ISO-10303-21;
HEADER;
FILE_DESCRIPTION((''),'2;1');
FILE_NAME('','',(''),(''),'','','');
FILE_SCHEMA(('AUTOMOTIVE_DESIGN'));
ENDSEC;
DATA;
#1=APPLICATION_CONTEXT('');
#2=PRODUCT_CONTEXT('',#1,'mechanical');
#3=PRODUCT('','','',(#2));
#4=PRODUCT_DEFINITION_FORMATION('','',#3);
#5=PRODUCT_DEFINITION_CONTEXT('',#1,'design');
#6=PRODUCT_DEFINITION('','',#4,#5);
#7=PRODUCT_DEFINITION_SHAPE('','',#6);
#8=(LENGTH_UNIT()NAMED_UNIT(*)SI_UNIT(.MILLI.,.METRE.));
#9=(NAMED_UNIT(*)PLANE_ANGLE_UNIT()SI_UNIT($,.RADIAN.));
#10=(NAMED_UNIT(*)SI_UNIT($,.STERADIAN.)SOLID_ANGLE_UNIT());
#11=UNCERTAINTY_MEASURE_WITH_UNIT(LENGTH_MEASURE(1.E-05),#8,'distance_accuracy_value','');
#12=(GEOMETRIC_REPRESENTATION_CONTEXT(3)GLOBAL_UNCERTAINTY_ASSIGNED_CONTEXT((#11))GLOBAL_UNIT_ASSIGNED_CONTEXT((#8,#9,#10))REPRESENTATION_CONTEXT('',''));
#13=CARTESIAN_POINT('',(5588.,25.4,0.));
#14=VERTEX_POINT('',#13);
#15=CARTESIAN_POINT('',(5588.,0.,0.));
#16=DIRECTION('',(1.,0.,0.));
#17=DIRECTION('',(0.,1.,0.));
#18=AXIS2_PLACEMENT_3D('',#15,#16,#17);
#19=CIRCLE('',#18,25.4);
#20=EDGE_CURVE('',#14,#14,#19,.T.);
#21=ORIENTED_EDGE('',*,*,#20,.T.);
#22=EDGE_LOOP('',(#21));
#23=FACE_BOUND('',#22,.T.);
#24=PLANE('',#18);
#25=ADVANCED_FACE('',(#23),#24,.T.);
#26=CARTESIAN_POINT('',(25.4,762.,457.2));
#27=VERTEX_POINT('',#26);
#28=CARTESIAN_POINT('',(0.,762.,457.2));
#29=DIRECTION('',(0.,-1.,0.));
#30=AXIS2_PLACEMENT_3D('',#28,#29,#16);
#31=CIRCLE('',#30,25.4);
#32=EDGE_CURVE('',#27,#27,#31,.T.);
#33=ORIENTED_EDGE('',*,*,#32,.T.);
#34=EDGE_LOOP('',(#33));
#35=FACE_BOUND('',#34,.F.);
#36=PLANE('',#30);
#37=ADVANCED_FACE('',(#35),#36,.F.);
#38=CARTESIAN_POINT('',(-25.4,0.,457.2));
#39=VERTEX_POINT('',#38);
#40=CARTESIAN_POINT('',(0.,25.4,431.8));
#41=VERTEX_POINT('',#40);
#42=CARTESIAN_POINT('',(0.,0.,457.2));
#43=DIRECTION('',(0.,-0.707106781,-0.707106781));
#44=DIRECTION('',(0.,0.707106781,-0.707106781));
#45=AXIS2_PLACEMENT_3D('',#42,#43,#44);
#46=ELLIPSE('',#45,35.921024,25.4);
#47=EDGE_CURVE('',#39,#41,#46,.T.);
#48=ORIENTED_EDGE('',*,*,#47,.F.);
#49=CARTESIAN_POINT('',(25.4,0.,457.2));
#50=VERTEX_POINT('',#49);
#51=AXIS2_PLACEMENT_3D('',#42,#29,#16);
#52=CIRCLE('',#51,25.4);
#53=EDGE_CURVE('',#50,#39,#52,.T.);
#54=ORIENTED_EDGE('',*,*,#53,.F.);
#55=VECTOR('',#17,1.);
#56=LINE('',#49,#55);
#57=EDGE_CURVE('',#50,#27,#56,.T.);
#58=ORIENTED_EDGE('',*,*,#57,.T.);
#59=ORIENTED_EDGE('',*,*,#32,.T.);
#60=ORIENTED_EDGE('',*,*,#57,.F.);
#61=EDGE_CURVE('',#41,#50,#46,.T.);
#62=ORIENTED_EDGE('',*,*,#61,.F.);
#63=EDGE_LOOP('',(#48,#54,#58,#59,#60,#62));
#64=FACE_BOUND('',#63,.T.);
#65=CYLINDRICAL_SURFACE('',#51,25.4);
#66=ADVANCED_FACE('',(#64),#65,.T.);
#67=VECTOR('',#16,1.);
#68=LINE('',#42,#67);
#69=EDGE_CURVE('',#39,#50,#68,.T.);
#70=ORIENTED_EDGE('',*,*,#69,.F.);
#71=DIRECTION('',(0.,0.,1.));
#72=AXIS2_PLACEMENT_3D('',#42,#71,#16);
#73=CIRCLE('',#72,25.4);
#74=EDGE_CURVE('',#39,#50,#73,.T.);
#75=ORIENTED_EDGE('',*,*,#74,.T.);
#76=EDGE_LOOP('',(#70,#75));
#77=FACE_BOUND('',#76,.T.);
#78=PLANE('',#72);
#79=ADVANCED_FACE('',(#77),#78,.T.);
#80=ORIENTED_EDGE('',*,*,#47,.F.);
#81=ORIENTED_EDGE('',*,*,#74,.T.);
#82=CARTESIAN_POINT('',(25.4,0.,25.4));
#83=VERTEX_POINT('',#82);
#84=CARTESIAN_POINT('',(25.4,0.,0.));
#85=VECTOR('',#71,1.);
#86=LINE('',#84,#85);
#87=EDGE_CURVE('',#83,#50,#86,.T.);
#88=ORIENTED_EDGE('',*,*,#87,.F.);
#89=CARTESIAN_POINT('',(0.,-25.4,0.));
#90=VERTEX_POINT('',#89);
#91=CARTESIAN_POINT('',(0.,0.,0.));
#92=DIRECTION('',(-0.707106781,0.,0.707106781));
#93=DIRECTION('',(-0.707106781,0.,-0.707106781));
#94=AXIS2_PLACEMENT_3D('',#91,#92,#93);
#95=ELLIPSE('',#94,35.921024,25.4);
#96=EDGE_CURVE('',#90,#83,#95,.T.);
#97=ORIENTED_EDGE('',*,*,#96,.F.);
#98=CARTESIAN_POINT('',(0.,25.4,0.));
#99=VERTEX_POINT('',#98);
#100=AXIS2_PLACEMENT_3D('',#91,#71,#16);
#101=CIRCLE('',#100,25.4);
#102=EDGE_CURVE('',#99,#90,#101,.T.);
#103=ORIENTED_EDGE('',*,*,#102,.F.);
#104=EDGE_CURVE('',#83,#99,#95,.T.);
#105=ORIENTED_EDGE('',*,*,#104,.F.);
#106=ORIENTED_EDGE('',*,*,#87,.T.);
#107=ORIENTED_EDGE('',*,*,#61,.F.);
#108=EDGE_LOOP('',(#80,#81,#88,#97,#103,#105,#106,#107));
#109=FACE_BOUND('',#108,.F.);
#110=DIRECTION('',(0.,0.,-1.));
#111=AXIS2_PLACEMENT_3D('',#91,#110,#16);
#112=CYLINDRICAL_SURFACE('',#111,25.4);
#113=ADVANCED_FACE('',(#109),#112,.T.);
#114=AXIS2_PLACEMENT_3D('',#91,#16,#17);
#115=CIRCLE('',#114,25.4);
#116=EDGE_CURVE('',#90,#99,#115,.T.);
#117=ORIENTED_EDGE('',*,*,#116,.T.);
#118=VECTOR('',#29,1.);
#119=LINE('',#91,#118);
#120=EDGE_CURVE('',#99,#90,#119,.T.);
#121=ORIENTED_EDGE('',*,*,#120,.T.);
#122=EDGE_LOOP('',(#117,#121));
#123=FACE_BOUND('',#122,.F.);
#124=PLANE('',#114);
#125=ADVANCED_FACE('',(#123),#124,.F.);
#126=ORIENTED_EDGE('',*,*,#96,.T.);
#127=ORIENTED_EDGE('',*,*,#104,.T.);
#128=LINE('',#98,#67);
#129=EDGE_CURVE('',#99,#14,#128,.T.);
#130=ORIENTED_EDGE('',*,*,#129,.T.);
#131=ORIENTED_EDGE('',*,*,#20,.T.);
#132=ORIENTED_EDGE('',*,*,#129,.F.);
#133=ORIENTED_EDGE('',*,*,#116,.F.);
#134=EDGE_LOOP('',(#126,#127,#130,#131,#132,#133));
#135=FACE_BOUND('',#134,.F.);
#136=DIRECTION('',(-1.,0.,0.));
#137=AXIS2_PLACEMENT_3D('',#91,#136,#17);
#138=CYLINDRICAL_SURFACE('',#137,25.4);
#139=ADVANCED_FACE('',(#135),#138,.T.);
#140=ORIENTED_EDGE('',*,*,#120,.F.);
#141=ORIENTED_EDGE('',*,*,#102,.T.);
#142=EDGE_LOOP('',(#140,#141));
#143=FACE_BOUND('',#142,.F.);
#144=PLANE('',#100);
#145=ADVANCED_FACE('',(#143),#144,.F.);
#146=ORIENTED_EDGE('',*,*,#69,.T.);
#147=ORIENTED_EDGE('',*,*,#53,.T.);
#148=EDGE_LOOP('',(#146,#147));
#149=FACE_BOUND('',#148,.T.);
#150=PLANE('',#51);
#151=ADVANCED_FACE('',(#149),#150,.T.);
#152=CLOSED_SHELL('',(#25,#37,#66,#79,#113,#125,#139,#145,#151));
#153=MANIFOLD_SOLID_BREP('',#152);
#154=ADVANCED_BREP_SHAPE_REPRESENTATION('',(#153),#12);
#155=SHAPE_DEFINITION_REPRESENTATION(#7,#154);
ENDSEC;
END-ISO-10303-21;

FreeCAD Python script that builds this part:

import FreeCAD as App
import Part
import Sketcher

V = App.Vector
Q = App.Units.Quantity

doc = App.newDocument("Part")
body = doc.addObject("PartDesign::Body", "Body")

# Sketch on YZ plane
sketch1 = body.newObject("Sketcher::SketchObject", "Sketch")
sketch1.AttachmentSupport = (doc.getObject("YZ_Plane"), [""])
sketch1.MapMode = "FlatFace"
sketch1.addGeometry(Part.Circle(V(0, 0, 0), V(0, 0, 1), 25), False)
sketch1.addConstraint(Sketcher.Constraint("Coincident", 0, 3, -1, 1))
sketch1.addConstraint(Sketcher.Constraint("Diameter", 0, Q("2 in")))
pad1 = body.newObject("PartDesign::Pad", "Pad")
pad1.Profile = sketch1
pad1.Length = Q("220 in")

# Sketch on XY plane
sketch2 = body.newObject("Sketcher::SketchObject", "Sketch001")
sketch2.AttachmentSupport = (doc.getObject("XY_Plane"), [""])
sketch2.MapMode = "FlatFace"
sketch2.addGeometry(Part.Circle(V(0, 0, 0), V(0, 0, 1), 25), False)
sketch2.addConstraint(Sketcher.Constraint("Coincident", 0, 3, -1, 1))
sketch2.addConstraint(Sketcher.Constraint("Diameter", 0, Q("2 in")))
pad2 = body.newObject("PartDesign::Pad", "Pad001")
pad2.Profile = sketch2
pad2.Length = Q("18 in")

# Sketch on XZ plane
sketch3 = body.newObject("Sketcher::SketchObject", "Sketch002")
sketch3.AttachmentSupport = (doc.getObject("XZ_Plane"), [""])
sketch3.MapMode = "FlatFace"
sketch3.addGeometry(Part.Circle(V(0, 457, 0), V(0, 0, 1), 25), False)
sketch3.addConstraint(Sketcher.Constraint("PointOnObject", 0, 3, -2))
sketch3.addConstraint(Sketcher.Constraint("Diameter", 0, Q("2 in")))
sketch3.addConstraint(Sketcher.Constraint("DistanceY", -1, 1, 0, 3, Q("18 in")))
pad3 = body.newObject("PartDesign::Pad", "Pad002")
pad3.Profile = sketch3
pad3.Length = Q("30 in")
pad3.Reversed = True

doc.recompute()
